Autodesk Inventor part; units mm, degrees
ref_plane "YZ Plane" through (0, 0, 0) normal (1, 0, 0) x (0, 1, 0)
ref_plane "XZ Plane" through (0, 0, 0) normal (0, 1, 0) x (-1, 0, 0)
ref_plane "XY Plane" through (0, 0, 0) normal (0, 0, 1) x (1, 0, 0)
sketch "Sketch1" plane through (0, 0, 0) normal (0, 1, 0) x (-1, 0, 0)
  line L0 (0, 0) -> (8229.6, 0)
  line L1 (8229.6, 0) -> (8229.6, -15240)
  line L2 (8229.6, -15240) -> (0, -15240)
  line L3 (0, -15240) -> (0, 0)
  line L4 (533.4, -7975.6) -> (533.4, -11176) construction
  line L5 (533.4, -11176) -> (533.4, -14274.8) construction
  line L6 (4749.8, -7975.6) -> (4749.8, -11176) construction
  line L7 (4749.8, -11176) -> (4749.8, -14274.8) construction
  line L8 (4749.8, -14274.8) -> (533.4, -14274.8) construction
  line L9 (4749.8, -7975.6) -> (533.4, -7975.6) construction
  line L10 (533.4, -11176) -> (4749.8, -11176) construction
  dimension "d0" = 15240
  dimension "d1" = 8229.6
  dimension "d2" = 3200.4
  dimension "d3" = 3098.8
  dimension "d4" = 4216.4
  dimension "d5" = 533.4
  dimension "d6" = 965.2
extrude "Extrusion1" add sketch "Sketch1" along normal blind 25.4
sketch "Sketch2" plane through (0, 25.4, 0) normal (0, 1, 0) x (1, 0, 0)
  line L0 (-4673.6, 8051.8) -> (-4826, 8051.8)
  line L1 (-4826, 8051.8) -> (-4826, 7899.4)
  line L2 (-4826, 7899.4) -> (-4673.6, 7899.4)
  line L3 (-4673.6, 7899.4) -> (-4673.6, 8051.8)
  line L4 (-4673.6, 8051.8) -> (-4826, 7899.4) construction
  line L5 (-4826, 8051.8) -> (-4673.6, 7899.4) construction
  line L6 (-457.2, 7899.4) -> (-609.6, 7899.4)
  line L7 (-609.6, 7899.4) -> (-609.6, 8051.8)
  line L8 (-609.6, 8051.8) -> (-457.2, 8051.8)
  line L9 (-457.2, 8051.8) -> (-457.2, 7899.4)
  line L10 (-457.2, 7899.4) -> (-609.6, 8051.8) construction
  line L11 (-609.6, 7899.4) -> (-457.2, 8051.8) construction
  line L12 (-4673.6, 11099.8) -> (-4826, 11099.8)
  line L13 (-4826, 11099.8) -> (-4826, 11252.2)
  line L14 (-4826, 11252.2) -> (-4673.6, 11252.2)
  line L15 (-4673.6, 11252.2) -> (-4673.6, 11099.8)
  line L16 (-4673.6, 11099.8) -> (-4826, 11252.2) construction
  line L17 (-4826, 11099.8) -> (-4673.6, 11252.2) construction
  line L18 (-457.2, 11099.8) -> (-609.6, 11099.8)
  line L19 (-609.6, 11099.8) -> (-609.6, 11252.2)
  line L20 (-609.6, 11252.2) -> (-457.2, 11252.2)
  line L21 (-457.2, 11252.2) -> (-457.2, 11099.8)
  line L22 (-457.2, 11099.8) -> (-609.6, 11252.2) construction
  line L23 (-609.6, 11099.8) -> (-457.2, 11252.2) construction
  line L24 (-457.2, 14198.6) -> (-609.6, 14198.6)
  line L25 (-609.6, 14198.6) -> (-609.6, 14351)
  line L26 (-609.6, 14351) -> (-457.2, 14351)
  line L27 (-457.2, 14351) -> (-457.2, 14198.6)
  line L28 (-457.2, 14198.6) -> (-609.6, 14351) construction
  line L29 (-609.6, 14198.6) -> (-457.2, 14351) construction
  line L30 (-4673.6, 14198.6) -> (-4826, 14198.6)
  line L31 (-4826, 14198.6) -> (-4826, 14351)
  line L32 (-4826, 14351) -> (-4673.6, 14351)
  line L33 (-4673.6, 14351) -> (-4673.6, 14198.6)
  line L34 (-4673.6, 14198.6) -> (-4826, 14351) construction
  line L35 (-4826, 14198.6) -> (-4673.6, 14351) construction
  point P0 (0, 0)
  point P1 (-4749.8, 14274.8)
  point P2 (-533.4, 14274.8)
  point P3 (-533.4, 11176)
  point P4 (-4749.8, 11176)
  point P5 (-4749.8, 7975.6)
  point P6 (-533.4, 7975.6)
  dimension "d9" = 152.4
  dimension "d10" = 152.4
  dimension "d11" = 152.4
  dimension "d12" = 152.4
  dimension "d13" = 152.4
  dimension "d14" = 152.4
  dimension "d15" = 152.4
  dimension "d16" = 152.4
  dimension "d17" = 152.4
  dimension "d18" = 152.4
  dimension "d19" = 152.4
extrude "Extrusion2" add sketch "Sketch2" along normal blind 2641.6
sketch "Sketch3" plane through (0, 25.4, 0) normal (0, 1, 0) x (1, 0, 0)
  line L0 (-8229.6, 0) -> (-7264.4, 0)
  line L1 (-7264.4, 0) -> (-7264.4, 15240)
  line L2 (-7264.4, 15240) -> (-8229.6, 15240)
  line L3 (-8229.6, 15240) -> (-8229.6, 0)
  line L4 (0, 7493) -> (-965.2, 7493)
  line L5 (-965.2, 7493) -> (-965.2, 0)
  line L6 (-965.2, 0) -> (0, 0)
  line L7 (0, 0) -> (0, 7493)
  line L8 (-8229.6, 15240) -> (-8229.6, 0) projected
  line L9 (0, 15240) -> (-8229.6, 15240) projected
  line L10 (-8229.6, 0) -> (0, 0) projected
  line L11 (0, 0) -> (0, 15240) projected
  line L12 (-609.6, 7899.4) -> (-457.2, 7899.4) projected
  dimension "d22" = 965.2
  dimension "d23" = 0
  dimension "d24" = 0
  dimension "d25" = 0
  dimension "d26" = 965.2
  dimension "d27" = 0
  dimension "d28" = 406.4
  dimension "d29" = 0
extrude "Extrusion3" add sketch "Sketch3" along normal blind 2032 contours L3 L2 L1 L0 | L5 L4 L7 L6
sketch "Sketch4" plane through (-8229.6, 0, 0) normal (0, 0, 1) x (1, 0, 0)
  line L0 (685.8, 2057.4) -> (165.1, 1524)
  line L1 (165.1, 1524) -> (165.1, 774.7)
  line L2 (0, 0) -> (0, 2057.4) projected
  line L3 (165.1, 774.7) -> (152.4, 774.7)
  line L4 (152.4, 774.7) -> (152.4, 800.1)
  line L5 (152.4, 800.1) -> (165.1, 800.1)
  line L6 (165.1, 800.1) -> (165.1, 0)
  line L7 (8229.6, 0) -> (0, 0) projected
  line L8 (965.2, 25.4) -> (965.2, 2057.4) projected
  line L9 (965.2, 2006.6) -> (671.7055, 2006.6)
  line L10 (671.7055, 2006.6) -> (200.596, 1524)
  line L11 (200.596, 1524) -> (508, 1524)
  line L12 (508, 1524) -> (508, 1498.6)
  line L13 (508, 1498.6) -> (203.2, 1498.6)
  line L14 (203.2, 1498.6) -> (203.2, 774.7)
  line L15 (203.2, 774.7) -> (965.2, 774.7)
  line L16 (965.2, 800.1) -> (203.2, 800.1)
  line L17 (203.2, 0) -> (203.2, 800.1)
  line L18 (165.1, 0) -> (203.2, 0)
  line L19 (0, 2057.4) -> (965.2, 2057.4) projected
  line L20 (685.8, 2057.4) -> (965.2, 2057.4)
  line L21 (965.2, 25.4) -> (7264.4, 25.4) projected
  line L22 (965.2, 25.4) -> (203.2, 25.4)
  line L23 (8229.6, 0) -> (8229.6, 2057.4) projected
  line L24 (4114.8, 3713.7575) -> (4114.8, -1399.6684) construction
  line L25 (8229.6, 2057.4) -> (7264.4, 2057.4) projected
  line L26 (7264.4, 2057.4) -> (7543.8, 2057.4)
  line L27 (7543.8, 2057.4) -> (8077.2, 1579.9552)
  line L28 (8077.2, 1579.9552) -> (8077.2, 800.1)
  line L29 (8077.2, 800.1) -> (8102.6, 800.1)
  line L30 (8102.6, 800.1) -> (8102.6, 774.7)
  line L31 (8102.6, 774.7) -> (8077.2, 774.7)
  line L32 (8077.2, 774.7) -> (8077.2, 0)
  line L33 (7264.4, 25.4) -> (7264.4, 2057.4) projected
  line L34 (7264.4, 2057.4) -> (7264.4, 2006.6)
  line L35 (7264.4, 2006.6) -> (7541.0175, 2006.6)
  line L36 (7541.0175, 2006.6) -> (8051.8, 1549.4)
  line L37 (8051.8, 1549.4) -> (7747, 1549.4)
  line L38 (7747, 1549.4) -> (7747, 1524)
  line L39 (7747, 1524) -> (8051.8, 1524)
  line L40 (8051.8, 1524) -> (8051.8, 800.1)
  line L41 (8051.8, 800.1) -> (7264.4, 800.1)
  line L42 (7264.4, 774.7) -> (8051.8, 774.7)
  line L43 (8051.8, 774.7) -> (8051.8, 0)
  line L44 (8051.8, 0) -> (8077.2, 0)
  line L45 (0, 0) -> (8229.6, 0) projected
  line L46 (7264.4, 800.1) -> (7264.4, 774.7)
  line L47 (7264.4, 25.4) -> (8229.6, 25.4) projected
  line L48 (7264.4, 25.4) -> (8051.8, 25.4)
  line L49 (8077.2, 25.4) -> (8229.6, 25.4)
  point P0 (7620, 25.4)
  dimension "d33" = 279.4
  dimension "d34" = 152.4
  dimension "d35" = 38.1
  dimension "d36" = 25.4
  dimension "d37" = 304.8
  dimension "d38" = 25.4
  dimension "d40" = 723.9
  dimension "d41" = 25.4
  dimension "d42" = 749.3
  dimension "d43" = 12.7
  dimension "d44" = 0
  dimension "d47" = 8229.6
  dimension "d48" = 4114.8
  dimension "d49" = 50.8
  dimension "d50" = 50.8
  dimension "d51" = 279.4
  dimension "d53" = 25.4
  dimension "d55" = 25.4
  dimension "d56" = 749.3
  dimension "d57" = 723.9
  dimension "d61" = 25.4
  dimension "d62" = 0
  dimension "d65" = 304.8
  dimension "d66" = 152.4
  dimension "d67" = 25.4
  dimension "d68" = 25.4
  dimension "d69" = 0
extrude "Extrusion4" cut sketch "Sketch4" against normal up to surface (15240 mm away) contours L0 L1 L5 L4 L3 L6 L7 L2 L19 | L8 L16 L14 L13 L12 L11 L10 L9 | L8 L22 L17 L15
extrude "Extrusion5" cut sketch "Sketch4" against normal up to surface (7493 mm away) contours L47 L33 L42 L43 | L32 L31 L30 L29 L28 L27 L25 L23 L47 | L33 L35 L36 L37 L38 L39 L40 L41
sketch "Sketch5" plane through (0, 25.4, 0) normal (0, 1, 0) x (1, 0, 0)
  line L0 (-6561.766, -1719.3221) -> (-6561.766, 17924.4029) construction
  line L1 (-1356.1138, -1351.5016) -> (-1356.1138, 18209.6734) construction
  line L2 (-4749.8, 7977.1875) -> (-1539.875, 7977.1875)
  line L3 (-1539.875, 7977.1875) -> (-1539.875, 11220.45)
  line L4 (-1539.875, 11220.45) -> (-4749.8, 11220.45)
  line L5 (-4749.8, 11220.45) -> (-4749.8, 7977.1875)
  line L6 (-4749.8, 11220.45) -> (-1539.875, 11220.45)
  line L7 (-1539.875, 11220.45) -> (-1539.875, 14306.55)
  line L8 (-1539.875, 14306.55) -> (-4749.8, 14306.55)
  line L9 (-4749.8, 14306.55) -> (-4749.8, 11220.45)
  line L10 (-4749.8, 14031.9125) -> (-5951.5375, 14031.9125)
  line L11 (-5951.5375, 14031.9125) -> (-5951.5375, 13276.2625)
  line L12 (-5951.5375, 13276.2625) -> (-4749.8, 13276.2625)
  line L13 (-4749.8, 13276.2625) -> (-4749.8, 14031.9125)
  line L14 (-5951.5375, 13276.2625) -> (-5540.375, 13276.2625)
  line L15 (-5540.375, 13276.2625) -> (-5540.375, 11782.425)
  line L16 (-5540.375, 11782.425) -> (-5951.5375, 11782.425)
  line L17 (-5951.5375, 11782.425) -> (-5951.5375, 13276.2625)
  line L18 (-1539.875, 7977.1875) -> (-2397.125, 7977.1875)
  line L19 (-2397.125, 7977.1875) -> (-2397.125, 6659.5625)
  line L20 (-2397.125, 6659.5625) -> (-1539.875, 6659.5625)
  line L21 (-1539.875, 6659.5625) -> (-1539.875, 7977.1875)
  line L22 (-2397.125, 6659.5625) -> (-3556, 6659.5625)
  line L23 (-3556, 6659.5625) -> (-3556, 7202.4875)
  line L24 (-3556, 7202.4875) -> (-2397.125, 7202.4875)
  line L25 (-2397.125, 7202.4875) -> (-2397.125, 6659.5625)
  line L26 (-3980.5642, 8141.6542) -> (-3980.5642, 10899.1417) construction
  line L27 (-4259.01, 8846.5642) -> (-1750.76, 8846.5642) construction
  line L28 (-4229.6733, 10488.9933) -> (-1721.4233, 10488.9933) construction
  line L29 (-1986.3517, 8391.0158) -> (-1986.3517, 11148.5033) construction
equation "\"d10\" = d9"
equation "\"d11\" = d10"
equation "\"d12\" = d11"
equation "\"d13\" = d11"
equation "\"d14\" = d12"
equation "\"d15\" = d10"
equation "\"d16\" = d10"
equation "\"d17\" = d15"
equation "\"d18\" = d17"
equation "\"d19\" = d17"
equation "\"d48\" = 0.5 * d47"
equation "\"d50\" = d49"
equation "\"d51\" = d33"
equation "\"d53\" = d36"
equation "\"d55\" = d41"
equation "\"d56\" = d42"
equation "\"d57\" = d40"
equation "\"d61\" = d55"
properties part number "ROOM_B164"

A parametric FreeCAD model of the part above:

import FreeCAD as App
import Part
import Sketcher
from FreeCAD import Vector
Q = App.Units.Quantity


def add_polygon(sketch, points):
    """Adds a closed chain of lines whose ends are joined by coincident constraints."""
    first, n = sketch.GeometryCount, len(points)
    for a, b in zip(points, points[1:] + points[:1]):
        sketch.addGeometry(Part.LineSegment(App.Vector(*a, 0), App.Vector(*b, 0)), False)
    for i in range(n):
        sketch.addConstraint(Sketcher.Constraint("Coincident", first + i, 2, first + (i + 1) % n, 1))

doc = App.newDocument("Part")
body = doc.addObject("PartDesign::Body", "Body")

sketch1 = body.newObject("Sketcher::SketchObject", "Sketch")
sketch1.AttachmentSupport = (doc.getObject("XZ_Plane"), [""])
sketch1.MapMode = "FlatFace"
add_polygon(sketch1, [(-8230, 0), (0, 0), (0, -15240), (-8230, -15240)])
sketch1.addConstraint([
    Sketcher.Constraint("Horizontal", 0),
    Sketcher.Constraint("Vertical", 1),
    Sketcher.Constraint("Horizontal", 2),
    Sketcher.Constraint("Vertical", 3),
    Sketcher.Constraint("Coincident", 0, 2, -1, 1),
    Sketcher.Constraint("DistanceX", 0, 1, 0, 2, Q("324 in")),
    Sketcher.Constraint("DistanceY", 1, 2, 1, 1, Q("600 in")),
])
pad1 = body.newObject("PartDesign::Pad", "Pad")
pad1.Profile = sketch1
pad1.Length = Q("1 in")
pad1.Reversed = True

sketch2 = body.newObject("Sketcher::SketchObject", "Sketch001")
sketch2.AttachmentSupport = (doc.getObject("XZ_Plane"), [""])
sketch2.MapMode = "FlatFace"
sketch2.AttachmentOffset = App.Placement(Vector(0, 0, -1 * 25.4), App.Rotation())
add_polygon(sketch2, [(-4674, -7899), (-4674, -8052), (-4826, -8052), (-4826, -7899)])
add_polygon(sketch2, [(-610, -7899), (-457, -7899), (-457, -8052), (-610, -8052)])
add_polygon(sketch2, [(-4826, -11100), (-4674, -11100), (-4674, -11252), (-4826, -11252)])
add_polygon(sketch2, [(-610, -11100), (-457, -11100), (-457, -11252), (-610, -11252)])
add_polygon(sketch2, [(-610, -14199), (-457, -14199), (-457, -14351), (-610, -14351)])
add_polygon(sketch2, [(-4826, -14199), (-4674, -14199), (-4674, -14351), (-4826, -14351)])
sketch2.addConstraint([
    Sketcher.Constraint("Vertical", 0),
    Sketcher.Constraint("Horizontal", 1),
    Sketcher.Constraint("Vertical", 2),
    Sketcher.Constraint("Horizontal", 3),
    Sketcher.Constraint("Horizontal", 4),
    Sketcher.Constraint("Vertical", 5),
    Sketcher.Constraint("Horizontal", 6),
    Sketcher.Constraint("Vertical", 7),
    Sketcher.Constraint("Horizontal", 8),
    Sketcher.Constraint("Vertical", 9),
    Sketcher.Constraint("Horizontal", 10),
    Sketcher.Constraint("Vertical", 11),
    Sketcher.Constraint("Horizontal", 12),
    Sketcher.Constraint("Vertical", 13),
    Sketcher.Constraint("Horizontal", 14),
    Sketcher.Constraint("Vertical", 15),
    Sketcher.Constraint("Horizontal", 16),
    Sketcher.Constraint("Vertical", 17),
    Sketcher.Constraint("Horizontal", 18),
    Sketcher.Constraint("Vertical", 19),
    Sketcher.Constraint("Horizontal", 20),
    Sketcher.Constraint("Vertical", 21),
    Sketcher.Constraint("Horizontal", 22),
    Sketcher.Constraint("Vertical", 23),
    Sketcher.Constraint("Horizontal", 3, 2, 4, 2),
    Sketcher.Constraint("Horizontal", 1, 2, 5, 2),
    Sketcher.Constraint("Horizontal", 11, 2, 12, 2),
    Sketcher.Constraint("Horizontal", 10, 2, 13, 2),
    Sketcher.Constraint("Horizontal", 19, 2, 20, 2),
    Sketcher.Constraint("Horizontal", 18, 2, 21, 2),
    Sketcher.Constraint("Vertical", 3, 2, 8, 2),
    Sketcher.Constraint("Vertical", 2, 2, 10, 2),
    Sketcher.Constraint("Vertical", 5, 2, 12, 2),
    Sketcher.Constraint("Vertical", 7, 2, 14, 2),
    Sketcher.Constraint("Vertical", 13, 2, 16, 2),
    Sketcher.Constraint("Vertical", 15, 2, 18, 2),
    Sketcher.Constraint("Vertical", 9, 2, 20, 2),
    Sketcher.Constraint("Vertical", 11, 2, 22, 2),
    Sketcher.Constraint("Equal", 3, 4),
    Sketcher.Constraint("Equal", 22, 0),
    Sketcher.Constraint("Equal", 7, 9),
    Sketcher.Constraint("Equal", 15, 17),
    Sketcher.Constraint("DistanceX", 1, 2, 1, 1, Q("6 in")),
    Sketcher.Constraint("DistanceX", 0, 2, -1, 1, Q("184 in")),
    Sketcher.Constraint("DistanceY", 0, 2, -1, 1, Q("317 in")),
    Sketcher.Constraint("DistanceX", 4, 2, -1, 1, Q("18 in")),
    Sketcher.Constraint("DistanceY", 8, 2, -1, 1, Q("437 in")),
    Sketcher.Constraint("DistanceY", 16, 2, -1, 1, Q("559 in")),
])
pad2 = body.newObject("PartDesign::Pad", "Pad001")
pad2.Profile = sketch2
pad2.Length = Q("104 in")
pad2.Reversed = True

sketch3 = body.newObject("Sketcher::SketchObject", "Sketch002")
sketch3.AttachmentSupport = (doc.getObject("XZ_Plane"), [""])
sketch3.MapMode = "FlatFace"
sketch3.AttachmentOffset = App.Placement(Vector(0, 0, -1 * 25.4), App.Rotation())
add_polygon(sketch3, [(-8230, -15240), (-8230, 0), (-7264, 0), (-7264, -15240)])
add_polygon(sketch3, [(-965, -7493), (-965, 0), (0, 0), (0, -7493)])
sketch3.addConstraint([
    Sketcher.Constraint("Vertical", 0),
    Sketcher.Constraint("Horizontal", 1),
    Sketcher.Constraint("Vertical", 2),
    Sketcher.Constraint("Horizontal", 3),
    Sketcher.Constraint("Vertical", 4),
    Sketcher.Constraint("Horizontal", 5),
    Sketcher.Constraint("Vertical", 6),
    Sketcher.Constraint("Horizontal", 7),
    Sketcher.Constraint("Coincident", 5, 2, -1, 1),
    Sketcher.Constraint("PointOnObject", 0, 2, -1),
    Sketcher.Constraint("Equal", 3, 5),
    Sketcher.Constraint("DistanceX", 1, 1, 1, 2, Q("38 in")),
    Sketcher.Constraint("DistanceY", 0, 1, 0, 2, Q("600 in")),
    Sketcher.Constraint("DistanceY", 4, 1, 4, 2, Q("295 in")),
    Sketcher.Constraint("DistanceX", 0, 2, -1, 1, Q("324 in")),
])
pad3 = body.newObject("PartDesign::Pad", "Pad002")
pad3.Profile = sketch3
pad3.Length = Q("80 in")
pad3.Reversed = True

sketch4 = body.newObject("Sketcher::SketchObject", "Sketch003")
sketch4.AttachmentSupport = (doc.getObject("XY_Plane"), [""])
sketch4.MapMode = "FlatFace"
add_polygon(sketch4, [(-8064, 1524), (-7544, 2057), (-8230, 2057), (-8230, 0), (-8064, 0), (-8064, 775), (-8077, 775), (-8077, 800), (-8064, 800)])
add_polygon(sketch4, [(-7264, 800), (-7264, 2007), (-7558, 2007), (-8029, 1524), (-7722, 1524), (-7722, 1499), (-8026, 1499), (-8026, 800)])
add_polygon(sketch4, [(-7264, 25), (-7264, 775), (-8026, 775), (-8026, 25)])
sketch4.addConstraint([
    Sketcher.Constraint("Horizontal", 1),
    Sketcher.Constraint("Vertical", 2),
    Sketcher.Constraint("Horizontal", 3),
    Sketcher.Constraint("Vertical", 4),
    Sketcher.Constraint("Horizontal", 5),
    Sketcher.Constraint("Vertical", 6),
    Sketcher.Constraint("Horizontal", 7),
    Sketcher.Constraint("Vertical", 8),
    Sketcher.Constraint("Vertical", 9),
    Sketcher.Constraint("Horizontal", 10),
    Sketcher.Constraint("Horizontal", 12),
    Sketcher.Constraint("Vertical", 13),
    Sketcher.Constraint("Horizontal", 14),
    Sketcher.Constraint("Vertical", 15),
    Sketcher.Constraint("Horizontal", 16),
    Sketcher.Constraint("Vertical", 17),
    Sketcher.Constraint("Horizontal", 18),
    Sketcher.Constraint("Vertical", 19),
    Sketcher.Constraint("Horizontal", 20),
    Sketcher.Constraint("PointOnObject", 2, 2, -1),
    Sketcher.Constraint("Parallel", 0, 11),
    Sketcher.Constraint("Horizontal", 8, 2, 11, 2),
    Sketcher.Constraint("Horizontal", 7, 2, 15, 2),
    Sketcher.Constraint("Horizontal", 5, 2, 17, 2),
    Sketcher.Constraint("Vertical", 4, 2, 7, 2),
    Sketcher.Constraint("Vertical", 16, 2, 17, 2),
    Sketcher.Constraint("Vertical", 15, 2, 18, 2),
    Sketcher.Constraint("Equal", 6, 13),
    Sketcher.Constraint("DistanceX", 14, 2, 14, 1, Q("12 in")),
    Sketcher.Constraint("DistanceY", 6, 1, 6, 2, Q("1 in")),
    Sketcher.Constraint("DistanceX", 5, 2, 5, 1, Q("0.5 in")),
    Sketcher.Constraint("DistanceY", 8, 1, 8, 2, Q("28.5 in")),
    Sketcher.Constraint("DistanceY", 17, 1, 17, 2, Q("29.5 in")),
    Sketcher.Constraint("DistanceX", 1, 2, -1, 1, Q("324 in")),
    Sketcher.Constraint("DistanceY", -1, 1, 19, 2, Q("1 in")),
    Sketcher.Constraint("DistanceX", 2, 2, 5, 2, Q("6 in")),
    Sketcher.Constraint("DistanceX", 0, 2, 9, 2, Q("11 in")),
    Sketcher.Constraint("DistanceY", 9, 2, 0, 2, Q("2 in")),
    Sketcher.Constraint("DistanceX", 6, 2, 15, 2, Q("2 in")),
    Sketcher.Constraint("DistanceX", 1, 2, 1, 1, Q("27 in")),
    Sketcher.Constraint("DistanceY", 2, 2, 2, 1, Q("81 in")),
    Sketcher.Constraint("DistanceX", 10, 2, 10, 1, Q("11.5549 in")),
])
pocket1 = body.newObject("PartDesign::Pocket", "Pocket")
pocket1.Profile = sketch4
pocket1.Length = Q("600 in")

sketch5 = body.newObject("Sketcher::SketchObject", "Sketch004")
sketch5.AttachmentSupport = (doc.getObject("XY_Plane"), [""])
sketch5.MapMode = "FlatFace"
add_polygon(sketch5, [(-965, 25), (-178, 25), (-178, 775), (-965, 775)])
add_polygon(sketch5, [(-152, 775), (-152, 25), (0, 25), (0, 2057), (-686, 2057), (-152, 1580), (-152, 800), (-127, 800), (-127, 775)])
add_polygon(sketch5, [(-965, 2007), (-965, 800), (-178, 800), (-178, 1524), (-483, 1524), (-483, 1549), (-178, 1549), (-689, 2007)])
sketch5.addConstraint([
    Sketcher.Constraint("Horizontal", 0),
    Sketcher.Constraint("Vertical", 1),
    Sketcher.Constraint("Horizontal", 2),
    Sketcher.Constraint("Vertical", 3),
    Sketcher.Constraint("Vertical", 4),
    Sketcher.Constraint("Horizontal", 5),
    Sketcher.Constraint("Vertical", 6),
    Sketcher.Constraint("Horizontal", 7),
    Sketcher.Constraint("Vertical", 9),
    Sketcher.Constraint("Horizontal", 10),
    Sketcher.Constraint("Vertical", 11),
    Sketcher.Constraint("Horizontal", 12),
    Sketcher.Constraint("Vertical", 13),
    Sketcher.Constraint("Horizontal", 14),
    Sketcher.Constraint("Vertical", 15),
    Sketcher.Constraint("Horizontal", 16),
    Sketcher.Constraint("Vertical", 17),
    Sketcher.Constraint("Horizontal", 18),
    Sketcher.Constraint("Horizontal", 20),
    Sketcher.Constraint("PointOnObject", 5, 2, -2),
    Sketcher.Constraint("Parallel", 8, 19),
    Sketcher.Constraint("Horizontal", 3, 2, 4, 2),
    Sketcher.Constraint("Horizontal", 2, 2, 11, 2),
    Sketcher.Constraint("Horizontal", 10, 2, 13, 2),
    Sketcher.Constraint("Vertical", 4, 2, 8, 2),
    Sketcher.Constraint("Vertical", 3, 2, 13, 2),
    Sketcher.Constraint("Vertical", 1, 2, 14, 2),
    Sketcher.Constraint("Vertical", 15, 2, 18, 2),
    Sketcher.Constraint("Equal", 12, 11),
    Sketcher.Constraint("Equal", 11, 17),
    Sketcher.Constraint("DistanceX", 5, 1, 5, 2, Q("6 in")),
    Sketcher.Constraint("DistanceX", 10, 1, 10, 2, Q("1 in")),
    Sketcher.Constraint("DistanceX", 16, 2, 16, 1, Q("12 in")),
    Sketcher.Constraint("DistanceY", 1, 1, 1, 2, Q("29.5 in")),
    Sketcher.Constraint("DistanceY", 15, 1, 15, 2, Q("28.5 in")),
    Sketcher.Constraint("DistanceY", -1, 1, 0, 2, Q("1 in")),
    Sketcher.Constraint("DistanceX", 0, 2, 4, 2, Q("1 in")),
    Sketcher.Constraint("DistanceX", 2, 2, 7, 2, Q("11 in")),
    Sketcher.Constraint("DistanceY", 19, 2, 7, 2, Q("2 in")),
    Sketcher.Constraint("DistanceX", 0, 1, 0, 2, Q("31 in")),
    Sketcher.Constraint("DistanceY", 6, 1, 6, 2, Q("80 in")),
    Sketcher.Constraint("DistanceX", 20, 2, 20, 1, Q("276.6175 mm")),
])
pocket2 = body.newObject("PartDesign::Pocket", "Pocket001")
pocket2.Profile = sketch5
pocket2.Length = Q("295 in")

doc.recompute()
